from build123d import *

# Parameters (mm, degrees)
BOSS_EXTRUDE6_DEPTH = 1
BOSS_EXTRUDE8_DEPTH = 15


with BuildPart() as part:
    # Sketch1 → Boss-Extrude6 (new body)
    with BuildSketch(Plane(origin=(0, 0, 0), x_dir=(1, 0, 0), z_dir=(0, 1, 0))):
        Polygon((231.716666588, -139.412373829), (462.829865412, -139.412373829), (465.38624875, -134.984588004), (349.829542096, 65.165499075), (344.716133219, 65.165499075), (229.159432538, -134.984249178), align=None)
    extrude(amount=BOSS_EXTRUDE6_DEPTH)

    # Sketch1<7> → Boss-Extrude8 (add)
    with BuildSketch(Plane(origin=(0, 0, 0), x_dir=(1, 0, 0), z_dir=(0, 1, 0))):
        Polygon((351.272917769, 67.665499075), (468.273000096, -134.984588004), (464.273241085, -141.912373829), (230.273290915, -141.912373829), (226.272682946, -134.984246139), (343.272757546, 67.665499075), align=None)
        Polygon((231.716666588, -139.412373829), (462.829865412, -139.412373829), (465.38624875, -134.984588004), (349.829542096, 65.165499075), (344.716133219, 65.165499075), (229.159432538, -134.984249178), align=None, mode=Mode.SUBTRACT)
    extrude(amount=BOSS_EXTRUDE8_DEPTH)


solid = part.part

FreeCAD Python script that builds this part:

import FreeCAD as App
import Part
import Sketcher
from FreeCAD import Vector


def add_polygon(sketch, points):
    """Adds a closed chain of lines whose ends are joined by coincident constraints."""
    first, n = sketch.GeometryCount, len(points)
    for a, b in zip(points, points[1:] + points[:1]):
        sketch.addGeometry(Part.LineSegment(App.Vector(*a, 0), App.Vector(*b, 0)), False)
    for i in range(n):
        sketch.addConstraint(Sketcher.Constraint("Coincident", first + i, 2, first + (i + 1) % n, 1))

doc = App.newDocument("Part")
body = doc.addObject("PartDesign::Body", "Body")

# Sketch on XZ plane
sketch1 = body.newObject("Sketcher::SketchObject", "Sketch")
sketch1.AttachmentSupport = (doc.getObject("XZ_Plane"), [""])
sketch1.MapMode = "FlatFace"
add_polygon(sketch1, [(231.716667, 139.412374), (462.829865, 139.412374), (465.386249, 134.984588), (349.829542, -65.165499), (344.716133, -65.165499), (229.159433, 134.984249)])  # lines 0-5
sketch1.addConstraint(Sketcher.Constraint("Horizontal", 0))
sketch1.addConstraint(Sketcher.Constraint("Horizontal", 3))
sketch1.addConstraint(Sketcher.Constraint("DistanceX", 0, 1, 0, 2, 231.113199))
sketch1.addConstraint(Sketcher.Constraint("DistanceX", 3, 2, 3, 1, 5.113409))
sketch1.addConstraint(Sketcher.Constraint("DistanceY", 2, 2, -1, 1, 65.165499))
sketch1.addConstraint(Sketcher.Constraint("DistanceX", 4, 2, 3, 2, 115.556701))
sketch1.addConstraint(Sketcher.Constraint("DistanceX", -1, 1, 1, 2, 465.386249))
sketch1.addConstraint(Sketcher.Constraint("DistanceY", -1, 1, 1, 2, 134.984588))
sketch1.addConstraint(Sketcher.Constraint("DistanceY", -1, 1, 4, 2, 134.984249))
sketch1.addConstraint(Sketcher.Constraint("Distance", 1, 5.112767))
sketch1.addConstraint(Sketcher.Constraint("Distance", 2, 231.113413))
sketch1.addConstraint(Sketcher.Constraint("Distance", 5, 5.113485))
pad1 = body.newObject("PartDesign::Pad", "Pad")
pad1.Profile = sketch1
pad1.Length = 1
pad1.Reversed = True

# Sketch on XZ plane
sketch2 = body.newObject("Sketcher::SketchObject", "Sketch001")
sketch2.AttachmentSupport = (doc.getObject("XZ_Plane"), [""])
sketch2.MapMode = "FlatFace"
add_polygon(sketch2, [(468.273, 134.984588), (351.272918, -67.665499), (343.272758, -67.665499), (226.272683, 134.984246), (230.273291, 141.912374), (464.273241, 141.912374)])  # lines 0-5
add_polygon(sketch2, [(231.716667, 139.412374), (229.159433, 134.984249), (344.716133, -65.165499), (349.829542, -65.165499), (465.386249, 134.984588), (462.829865, 139.412374)])  # lines 6-11
sketch2.addConstraint(Sketcher.Constraint("Horizontal", 1))
sketch2.addConstraint(Sketcher.Constraint("Horizontal", 4))
sketch2.addConstraint(Sketcher.Constraint("Horizontal", 8))
sketch2.addConstraint(Sketcher.Constraint("Horizontal", 11))
sketch2.addConstraint(Sketcher.Constraint("DistanceY", 1, 2, 7, 2, 2.5))
sketch2.addConstraint(Sketcher.Constraint("DistanceY", 10, 2, 4, 2, 2.5))
sketch2.addConstraint(Sketcher.Constraint("DistanceX", 11, 2, 11, 1, 231.113199))
sketch2.addConstraint(Sketcher.Constraint("DistanceX", -1, 1, 5, 2, 468.273))
sketch2.addConstraint(Sketcher.Constraint("DistanceX", 1, 2, 1, 1, 8.00016))
sketch2.addConstraint(Sketcher.Constraint("DistanceX", 4, 1, 4, 2, 233.99995))
sketch2.addConstraint(Sketcher.Constraint("DistanceX", 8, 1, 8, 2, 5.113409))
sketch2.addConstraint(Sketcher.Constraint("DistanceY", 0, 2, -1, 1, 67.665499))
sketch2.addConstraint(Sketcher.Constraint("DistanceX", 6, 2, 7, 2, 115.556701))
sketch2.addConstraint(Sketcher.Constraint("Distance", 3, 8.000239))
sketch2.addConstraint(Sketcher.Constraint("Distance", 5, 7.999518))
sketch2.addConstraint(Sketcher.Constraint("DistanceX", -1, 1, 3, 2, 230.273291))
sketch2.addConstraint(Sketcher.Constraint("DistanceY", -1, 1, 5, 2, 134.984588))
sketch2.addConstraint(Sketcher.Constraint("DistanceY", -1, 1, 6, 2, 134.984249))
sketch2.addConstraint(Sketcher.Constraint("DistanceX", -1, 1, 9, 2, 465.386249))
sketch2.addConstraint(Sketcher.Constraint("DistanceY", -1, 1, 9, 2, 134.984588))
sketch2.addConstraint(Sketcher.Constraint("DistanceX", 2, 2, 4, 2, 238.000558))
sketch2.addConstraint(Sketcher.Constraint("DistanceX", 2, 2, 6, 2, 2.88675))
sketch2.addConstraint(Sketcher.Constraint("DistanceX", 0, 2, 9, 2, 114.113331))
sketch2.addConstraint(Sketcher.Constraint("Distance", 6, 5.113485))
pad2 = body.newObject("PartDesign::Pad", "Pad001")
pad2.Profile = sketch2
pad2.Length = 15
pad2.Reversed = True

doc.recompute()
